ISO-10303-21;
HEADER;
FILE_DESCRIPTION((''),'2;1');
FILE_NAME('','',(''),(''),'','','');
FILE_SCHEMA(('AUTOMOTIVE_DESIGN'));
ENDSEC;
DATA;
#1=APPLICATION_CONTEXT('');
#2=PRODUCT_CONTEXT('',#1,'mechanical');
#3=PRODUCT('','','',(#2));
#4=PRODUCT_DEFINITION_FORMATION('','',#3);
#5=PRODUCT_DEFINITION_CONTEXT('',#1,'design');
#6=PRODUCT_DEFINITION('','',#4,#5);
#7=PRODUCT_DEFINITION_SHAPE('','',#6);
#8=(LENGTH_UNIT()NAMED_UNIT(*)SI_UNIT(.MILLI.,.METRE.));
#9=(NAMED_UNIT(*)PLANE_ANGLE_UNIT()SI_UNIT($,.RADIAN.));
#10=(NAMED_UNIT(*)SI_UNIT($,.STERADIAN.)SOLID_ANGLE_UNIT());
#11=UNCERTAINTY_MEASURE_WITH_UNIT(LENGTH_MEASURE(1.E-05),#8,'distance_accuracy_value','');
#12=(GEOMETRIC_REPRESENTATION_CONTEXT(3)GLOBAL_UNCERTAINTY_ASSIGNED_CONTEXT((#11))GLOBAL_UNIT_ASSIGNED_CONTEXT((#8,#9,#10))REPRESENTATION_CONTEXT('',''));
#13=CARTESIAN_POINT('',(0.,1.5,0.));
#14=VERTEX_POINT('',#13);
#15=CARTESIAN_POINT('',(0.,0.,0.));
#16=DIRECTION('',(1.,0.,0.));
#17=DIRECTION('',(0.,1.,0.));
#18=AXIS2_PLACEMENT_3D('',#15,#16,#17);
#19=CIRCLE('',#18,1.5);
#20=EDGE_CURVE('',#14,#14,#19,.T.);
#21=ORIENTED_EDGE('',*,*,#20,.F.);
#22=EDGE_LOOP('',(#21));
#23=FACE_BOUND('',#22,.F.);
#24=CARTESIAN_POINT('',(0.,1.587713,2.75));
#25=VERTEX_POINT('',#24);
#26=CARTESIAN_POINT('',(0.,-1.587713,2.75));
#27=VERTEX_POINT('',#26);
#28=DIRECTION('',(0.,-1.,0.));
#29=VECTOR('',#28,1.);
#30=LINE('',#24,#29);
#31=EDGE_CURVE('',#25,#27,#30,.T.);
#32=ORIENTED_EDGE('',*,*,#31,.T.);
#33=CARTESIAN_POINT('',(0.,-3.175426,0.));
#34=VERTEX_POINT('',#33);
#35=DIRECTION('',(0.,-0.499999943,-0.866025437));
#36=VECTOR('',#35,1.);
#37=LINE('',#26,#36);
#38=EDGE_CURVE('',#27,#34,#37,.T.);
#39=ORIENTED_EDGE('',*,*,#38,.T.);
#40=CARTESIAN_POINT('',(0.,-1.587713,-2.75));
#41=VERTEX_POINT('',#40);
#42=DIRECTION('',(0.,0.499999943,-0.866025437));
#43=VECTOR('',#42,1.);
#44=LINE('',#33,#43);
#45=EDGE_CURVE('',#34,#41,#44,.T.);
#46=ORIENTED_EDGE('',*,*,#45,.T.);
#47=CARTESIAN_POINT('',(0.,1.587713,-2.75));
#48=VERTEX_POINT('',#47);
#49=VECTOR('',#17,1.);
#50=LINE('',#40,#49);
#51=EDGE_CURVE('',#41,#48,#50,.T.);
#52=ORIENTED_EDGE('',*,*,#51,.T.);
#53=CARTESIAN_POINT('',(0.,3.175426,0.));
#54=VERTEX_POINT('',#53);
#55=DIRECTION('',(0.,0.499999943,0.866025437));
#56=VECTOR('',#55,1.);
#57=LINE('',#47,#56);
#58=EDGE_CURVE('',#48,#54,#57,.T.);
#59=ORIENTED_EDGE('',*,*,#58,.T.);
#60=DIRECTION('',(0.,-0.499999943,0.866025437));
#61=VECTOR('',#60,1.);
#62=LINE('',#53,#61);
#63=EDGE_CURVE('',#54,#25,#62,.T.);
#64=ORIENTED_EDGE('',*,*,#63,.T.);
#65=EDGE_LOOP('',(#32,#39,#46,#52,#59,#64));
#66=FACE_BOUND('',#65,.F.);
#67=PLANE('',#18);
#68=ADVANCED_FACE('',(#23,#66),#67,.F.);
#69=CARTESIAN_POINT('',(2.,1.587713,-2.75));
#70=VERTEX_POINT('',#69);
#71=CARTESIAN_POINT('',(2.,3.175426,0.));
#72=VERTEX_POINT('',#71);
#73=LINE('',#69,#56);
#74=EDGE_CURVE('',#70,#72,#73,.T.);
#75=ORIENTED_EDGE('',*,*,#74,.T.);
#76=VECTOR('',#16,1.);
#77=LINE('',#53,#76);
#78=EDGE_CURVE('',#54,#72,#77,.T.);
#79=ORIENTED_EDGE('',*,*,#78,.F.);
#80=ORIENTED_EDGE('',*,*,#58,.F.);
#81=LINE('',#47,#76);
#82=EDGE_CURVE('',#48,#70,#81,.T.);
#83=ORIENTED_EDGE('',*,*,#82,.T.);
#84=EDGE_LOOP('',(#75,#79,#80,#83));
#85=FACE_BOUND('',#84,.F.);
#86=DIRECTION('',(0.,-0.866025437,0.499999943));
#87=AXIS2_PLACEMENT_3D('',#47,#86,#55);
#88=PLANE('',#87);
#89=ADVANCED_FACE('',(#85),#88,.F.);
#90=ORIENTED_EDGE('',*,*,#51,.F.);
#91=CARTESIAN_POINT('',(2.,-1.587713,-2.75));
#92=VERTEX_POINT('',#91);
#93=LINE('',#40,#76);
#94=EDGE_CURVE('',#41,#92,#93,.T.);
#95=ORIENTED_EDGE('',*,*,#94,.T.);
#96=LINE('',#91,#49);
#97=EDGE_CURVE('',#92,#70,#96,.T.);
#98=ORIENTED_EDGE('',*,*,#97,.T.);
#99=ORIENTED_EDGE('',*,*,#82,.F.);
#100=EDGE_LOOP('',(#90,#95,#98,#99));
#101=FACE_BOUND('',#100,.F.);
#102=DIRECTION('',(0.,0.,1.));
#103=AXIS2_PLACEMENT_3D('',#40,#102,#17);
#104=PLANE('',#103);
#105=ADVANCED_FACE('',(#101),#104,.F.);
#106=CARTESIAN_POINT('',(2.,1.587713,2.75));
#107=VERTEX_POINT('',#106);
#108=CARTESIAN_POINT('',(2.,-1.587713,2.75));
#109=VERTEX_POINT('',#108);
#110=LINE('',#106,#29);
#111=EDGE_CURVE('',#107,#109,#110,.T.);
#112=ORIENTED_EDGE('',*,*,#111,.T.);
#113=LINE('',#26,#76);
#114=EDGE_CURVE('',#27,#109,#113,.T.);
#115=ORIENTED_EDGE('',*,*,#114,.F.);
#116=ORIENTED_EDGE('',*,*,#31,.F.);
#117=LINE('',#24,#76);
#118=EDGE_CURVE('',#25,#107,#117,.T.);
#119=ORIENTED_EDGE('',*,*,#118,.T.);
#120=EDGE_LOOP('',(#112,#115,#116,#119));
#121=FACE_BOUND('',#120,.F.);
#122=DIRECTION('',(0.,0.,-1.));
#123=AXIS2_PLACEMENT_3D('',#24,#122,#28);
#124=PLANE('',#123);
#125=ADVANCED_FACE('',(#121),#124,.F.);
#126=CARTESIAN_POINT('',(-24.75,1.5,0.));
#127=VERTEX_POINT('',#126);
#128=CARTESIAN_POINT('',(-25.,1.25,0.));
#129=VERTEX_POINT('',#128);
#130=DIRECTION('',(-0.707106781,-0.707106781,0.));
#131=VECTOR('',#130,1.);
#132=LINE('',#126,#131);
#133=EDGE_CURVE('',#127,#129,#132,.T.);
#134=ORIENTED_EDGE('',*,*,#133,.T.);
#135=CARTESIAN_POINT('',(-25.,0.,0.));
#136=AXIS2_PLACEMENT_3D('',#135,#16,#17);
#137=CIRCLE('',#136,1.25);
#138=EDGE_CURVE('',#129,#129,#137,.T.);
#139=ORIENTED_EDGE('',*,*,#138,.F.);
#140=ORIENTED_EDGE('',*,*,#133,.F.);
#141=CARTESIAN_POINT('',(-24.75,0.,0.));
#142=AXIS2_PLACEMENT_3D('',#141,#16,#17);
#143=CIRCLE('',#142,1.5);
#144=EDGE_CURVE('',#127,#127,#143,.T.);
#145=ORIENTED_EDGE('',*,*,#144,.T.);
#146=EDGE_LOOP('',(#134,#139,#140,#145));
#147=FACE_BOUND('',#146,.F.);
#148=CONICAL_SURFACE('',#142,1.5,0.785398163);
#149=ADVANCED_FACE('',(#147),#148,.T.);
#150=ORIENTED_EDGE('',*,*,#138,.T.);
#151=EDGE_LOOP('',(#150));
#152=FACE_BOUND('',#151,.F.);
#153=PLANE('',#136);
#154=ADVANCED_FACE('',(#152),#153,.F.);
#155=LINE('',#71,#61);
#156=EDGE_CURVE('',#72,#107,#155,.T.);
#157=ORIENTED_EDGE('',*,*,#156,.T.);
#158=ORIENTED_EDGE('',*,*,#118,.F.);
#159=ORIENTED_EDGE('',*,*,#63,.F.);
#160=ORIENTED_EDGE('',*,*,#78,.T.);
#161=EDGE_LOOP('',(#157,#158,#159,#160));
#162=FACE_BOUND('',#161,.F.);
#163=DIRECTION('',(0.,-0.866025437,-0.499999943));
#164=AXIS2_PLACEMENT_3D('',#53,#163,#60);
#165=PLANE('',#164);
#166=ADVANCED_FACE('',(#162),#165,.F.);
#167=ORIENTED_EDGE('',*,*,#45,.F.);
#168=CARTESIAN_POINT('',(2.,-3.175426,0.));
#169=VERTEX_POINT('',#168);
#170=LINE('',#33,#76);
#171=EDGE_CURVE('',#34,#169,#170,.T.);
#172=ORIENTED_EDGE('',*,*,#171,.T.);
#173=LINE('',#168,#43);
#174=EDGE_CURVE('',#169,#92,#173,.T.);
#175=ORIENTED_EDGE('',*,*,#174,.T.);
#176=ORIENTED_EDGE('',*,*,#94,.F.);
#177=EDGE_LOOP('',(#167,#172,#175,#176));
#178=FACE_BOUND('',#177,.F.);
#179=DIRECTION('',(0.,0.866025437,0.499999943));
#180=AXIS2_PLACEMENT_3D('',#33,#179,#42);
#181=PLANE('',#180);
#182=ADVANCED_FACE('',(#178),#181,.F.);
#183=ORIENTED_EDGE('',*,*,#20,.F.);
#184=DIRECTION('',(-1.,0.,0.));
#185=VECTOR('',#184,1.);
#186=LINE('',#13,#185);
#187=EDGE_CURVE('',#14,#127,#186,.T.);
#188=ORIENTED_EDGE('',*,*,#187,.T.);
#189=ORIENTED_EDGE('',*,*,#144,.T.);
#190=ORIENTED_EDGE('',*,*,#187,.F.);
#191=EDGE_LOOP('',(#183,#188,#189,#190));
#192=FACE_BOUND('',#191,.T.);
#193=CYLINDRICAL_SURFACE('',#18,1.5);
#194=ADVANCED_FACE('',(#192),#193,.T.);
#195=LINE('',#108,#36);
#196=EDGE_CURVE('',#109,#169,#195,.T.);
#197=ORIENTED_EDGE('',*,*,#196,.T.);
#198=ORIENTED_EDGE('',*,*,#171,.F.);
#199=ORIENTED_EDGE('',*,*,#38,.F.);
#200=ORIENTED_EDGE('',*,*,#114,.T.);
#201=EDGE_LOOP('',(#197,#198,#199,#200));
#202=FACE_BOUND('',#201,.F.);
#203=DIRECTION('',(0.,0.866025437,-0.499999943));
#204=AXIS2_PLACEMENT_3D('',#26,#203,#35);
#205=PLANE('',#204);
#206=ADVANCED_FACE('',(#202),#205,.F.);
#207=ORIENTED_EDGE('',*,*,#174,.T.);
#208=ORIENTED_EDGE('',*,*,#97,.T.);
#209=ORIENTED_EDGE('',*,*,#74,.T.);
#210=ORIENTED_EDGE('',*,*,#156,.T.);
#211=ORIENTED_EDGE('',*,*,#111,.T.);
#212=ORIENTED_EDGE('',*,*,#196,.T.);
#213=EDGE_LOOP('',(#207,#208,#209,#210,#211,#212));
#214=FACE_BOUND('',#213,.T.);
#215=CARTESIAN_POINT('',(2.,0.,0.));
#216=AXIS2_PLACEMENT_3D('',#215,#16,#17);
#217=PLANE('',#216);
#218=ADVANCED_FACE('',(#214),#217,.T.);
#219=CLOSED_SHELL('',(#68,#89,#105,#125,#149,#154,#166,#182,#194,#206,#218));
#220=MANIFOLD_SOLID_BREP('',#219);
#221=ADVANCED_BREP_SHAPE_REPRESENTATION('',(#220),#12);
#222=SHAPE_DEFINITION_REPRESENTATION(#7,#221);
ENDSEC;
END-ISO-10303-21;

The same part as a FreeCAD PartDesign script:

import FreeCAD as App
import Part
import Sketcher

V = App.Vector
Q = App.Units.Quantity


def edges_at(feature, points):
    """Names of the edges that pass closest to the given points."""
    edges = feature.Shape.Edges
    near = lambda p: min(range(len(edges)), key=lambda i: edges[i].distToShape(Part.Vertex(*p))[0])
    return sorted({f"Edge{near(p) + 1}" for p in points})


def add_polygon(sketch, points):
    """Adds a closed chain of lines whose ends are joined by coincident constraints."""
    first, n = sketch.GeometryCount, len(points)
    for a, b in zip(points, points[1:] + points[:1]):
        sketch.addGeometry(Part.LineSegment(App.Vector(*a, 0), App.Vector(*b, 0)), False)
    for i in range(n):
        sketch.addConstraint(Sketcher.Constraint("Coincident", first + i, 2, first + (i + 1) % n, 1))

doc = App.newDocument("Part")
body = doc.addObject("PartDesign::Body", "Body")

# Sketch on YZ plane
sketch1 = body.newObject("Sketcher::SketchObject", "Sketch")
sketch1.AttachmentSupport = (doc.getObject("YZ_Plane"), [""])
sketch1.MapMode = "FlatFace"
add_polygon(sketch1, [(-1.6, -2.8), (1.6, -2.8), (3.2, 0), (1.6, 2.8), (-1.6, 2.8), (-3.2, 0)])  # lines 0-5
sketch1.addConstraint([
    Sketcher.Constraint("Horizontal", 0),
    Sketcher.Constraint("Horizontal", 3),
    Sketcher.Constraint("Symmetric", 0, 2, 3, 2, -1, 1),
    Sketcher.Constraint("Symmetric", 1, 2, 4, 2, -1, 1),
    Sketcher.Constraint("PointOnObject", 1, 2, -1),
    Sketcher.Constraint("Parallel", 2, 5),
    Sketcher.Constraint("Vertical", 0, 2, 2, 2),
    Sketcher.Constraint("Angle", 1, Q("60.000004 deg")),
    Sketcher.Constraint("DistanceY", 0, 2, 2, 2, Q("5.5 mm")),
    Sketcher.Constraint("DistanceX", 0, 1, 0, 2, Q("3.175426 mm")),
])
pad1 = body.newObject("PartDesign::Pad", "Pad")
pad1.Profile = sketch1
pad1.Length = 2

# Sketch on YZ plane
sketch2 = body.newObject("Sketcher::SketchObject", "Sketch001")
sketch2.AttachmentSupport = (doc.getObject("YZ_Plane"), [""])
sketch2.MapMode = "FlatFace"
sketch2.addGeometry(Part.Circle(V(0, 0, 0), V(0, 0, 1), 1.5), False)
sketch2.addConstraint([
    Sketcher.Constraint("Coincident", 0, 3, -1, 1),
    Sketcher.Constraint("Diameter", 0, Q("3 mm")),
])
pad2 = body.newObject("PartDesign::Pad", "Pad001")
pad2.Profile = sketch2
pad2.Length = 25
pad2.Reversed = True
doc.recompute()

chamfer = body.newObject("PartDesign::Chamfer", "Chamfer")
chamfer.Base = (pad2, edges_at(pad2, [(-25, -1.5, 0)]))
chamfer.Size = 0.25

doc.recompute()
